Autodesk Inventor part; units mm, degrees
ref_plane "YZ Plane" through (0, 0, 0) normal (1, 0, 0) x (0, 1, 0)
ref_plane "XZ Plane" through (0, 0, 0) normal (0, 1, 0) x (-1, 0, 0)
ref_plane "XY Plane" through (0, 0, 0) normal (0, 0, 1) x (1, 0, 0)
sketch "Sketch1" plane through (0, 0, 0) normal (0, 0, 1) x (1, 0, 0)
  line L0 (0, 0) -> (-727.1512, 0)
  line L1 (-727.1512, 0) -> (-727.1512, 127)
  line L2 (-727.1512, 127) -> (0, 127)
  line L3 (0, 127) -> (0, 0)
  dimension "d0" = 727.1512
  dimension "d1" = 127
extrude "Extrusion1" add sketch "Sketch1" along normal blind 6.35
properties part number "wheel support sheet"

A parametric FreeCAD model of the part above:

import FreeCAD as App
import Part
import Sketcher

V = App.Vector
Q = App.Units.Quantity


def add_polygon(sketch, points):
    """Adds a closed chain of lines whose ends are joined by coincident constraints."""
    first, n = sketch.GeometryCount, len(points)
    for a, b in zip(points, points[1:] + points[:1]):
        sketch.addGeometry(Part.LineSegment(App.Vector(*a, 0), App.Vector(*b, 0)), False)
    for i in range(n):
        sketch.addConstraint(Sketcher.Constraint("Coincident", first + i, 2, first + (i + 1) % n, 1))

doc = App.newDocument("Part")
body = doc.addObject("PartDesign::Body", "Body")

# Sketch on XY plane
sketch1 = body.newObject("Sketcher::SketchObject", "Sketch")
sketch1.AttachmentSupport = (doc.getObject("XY_Plane"), [""])
sketch1.MapMode = "FlatFace"
add_polygon(sketch1, [(-727, 0), (0, 0), (0, 127), (-727, 127)])  # lines 0-3
sketch1.addConstraint(Sketcher.Constraint("Horizontal", 0))
sketch1.addConstraint(Sketcher.Constraint("Vertical", 1))
sketch1.addConstraint(Sketcher.Constraint("Horizontal", 2))
sketch1.addConstraint(Sketcher.Constraint("Vertical", 3))
sketch1.addConstraint(Sketcher.Constraint("Coincident", 0, 2, -1, 1))
sketch1.addConstraint(Sketcher.Constraint("DistanceY", 1, 1, 1, 2, Q("5 in")))
sketch1.addConstraint(Sketcher.Constraint("DistanceX", 0, 1, 0, 2, Q("28.628 in")))
pad1 = body.newObject("PartDesign::Pad", "Pad")
pad1.Profile = sketch1
pad1.Length = Q("0.25 in")

doc.recompute()
